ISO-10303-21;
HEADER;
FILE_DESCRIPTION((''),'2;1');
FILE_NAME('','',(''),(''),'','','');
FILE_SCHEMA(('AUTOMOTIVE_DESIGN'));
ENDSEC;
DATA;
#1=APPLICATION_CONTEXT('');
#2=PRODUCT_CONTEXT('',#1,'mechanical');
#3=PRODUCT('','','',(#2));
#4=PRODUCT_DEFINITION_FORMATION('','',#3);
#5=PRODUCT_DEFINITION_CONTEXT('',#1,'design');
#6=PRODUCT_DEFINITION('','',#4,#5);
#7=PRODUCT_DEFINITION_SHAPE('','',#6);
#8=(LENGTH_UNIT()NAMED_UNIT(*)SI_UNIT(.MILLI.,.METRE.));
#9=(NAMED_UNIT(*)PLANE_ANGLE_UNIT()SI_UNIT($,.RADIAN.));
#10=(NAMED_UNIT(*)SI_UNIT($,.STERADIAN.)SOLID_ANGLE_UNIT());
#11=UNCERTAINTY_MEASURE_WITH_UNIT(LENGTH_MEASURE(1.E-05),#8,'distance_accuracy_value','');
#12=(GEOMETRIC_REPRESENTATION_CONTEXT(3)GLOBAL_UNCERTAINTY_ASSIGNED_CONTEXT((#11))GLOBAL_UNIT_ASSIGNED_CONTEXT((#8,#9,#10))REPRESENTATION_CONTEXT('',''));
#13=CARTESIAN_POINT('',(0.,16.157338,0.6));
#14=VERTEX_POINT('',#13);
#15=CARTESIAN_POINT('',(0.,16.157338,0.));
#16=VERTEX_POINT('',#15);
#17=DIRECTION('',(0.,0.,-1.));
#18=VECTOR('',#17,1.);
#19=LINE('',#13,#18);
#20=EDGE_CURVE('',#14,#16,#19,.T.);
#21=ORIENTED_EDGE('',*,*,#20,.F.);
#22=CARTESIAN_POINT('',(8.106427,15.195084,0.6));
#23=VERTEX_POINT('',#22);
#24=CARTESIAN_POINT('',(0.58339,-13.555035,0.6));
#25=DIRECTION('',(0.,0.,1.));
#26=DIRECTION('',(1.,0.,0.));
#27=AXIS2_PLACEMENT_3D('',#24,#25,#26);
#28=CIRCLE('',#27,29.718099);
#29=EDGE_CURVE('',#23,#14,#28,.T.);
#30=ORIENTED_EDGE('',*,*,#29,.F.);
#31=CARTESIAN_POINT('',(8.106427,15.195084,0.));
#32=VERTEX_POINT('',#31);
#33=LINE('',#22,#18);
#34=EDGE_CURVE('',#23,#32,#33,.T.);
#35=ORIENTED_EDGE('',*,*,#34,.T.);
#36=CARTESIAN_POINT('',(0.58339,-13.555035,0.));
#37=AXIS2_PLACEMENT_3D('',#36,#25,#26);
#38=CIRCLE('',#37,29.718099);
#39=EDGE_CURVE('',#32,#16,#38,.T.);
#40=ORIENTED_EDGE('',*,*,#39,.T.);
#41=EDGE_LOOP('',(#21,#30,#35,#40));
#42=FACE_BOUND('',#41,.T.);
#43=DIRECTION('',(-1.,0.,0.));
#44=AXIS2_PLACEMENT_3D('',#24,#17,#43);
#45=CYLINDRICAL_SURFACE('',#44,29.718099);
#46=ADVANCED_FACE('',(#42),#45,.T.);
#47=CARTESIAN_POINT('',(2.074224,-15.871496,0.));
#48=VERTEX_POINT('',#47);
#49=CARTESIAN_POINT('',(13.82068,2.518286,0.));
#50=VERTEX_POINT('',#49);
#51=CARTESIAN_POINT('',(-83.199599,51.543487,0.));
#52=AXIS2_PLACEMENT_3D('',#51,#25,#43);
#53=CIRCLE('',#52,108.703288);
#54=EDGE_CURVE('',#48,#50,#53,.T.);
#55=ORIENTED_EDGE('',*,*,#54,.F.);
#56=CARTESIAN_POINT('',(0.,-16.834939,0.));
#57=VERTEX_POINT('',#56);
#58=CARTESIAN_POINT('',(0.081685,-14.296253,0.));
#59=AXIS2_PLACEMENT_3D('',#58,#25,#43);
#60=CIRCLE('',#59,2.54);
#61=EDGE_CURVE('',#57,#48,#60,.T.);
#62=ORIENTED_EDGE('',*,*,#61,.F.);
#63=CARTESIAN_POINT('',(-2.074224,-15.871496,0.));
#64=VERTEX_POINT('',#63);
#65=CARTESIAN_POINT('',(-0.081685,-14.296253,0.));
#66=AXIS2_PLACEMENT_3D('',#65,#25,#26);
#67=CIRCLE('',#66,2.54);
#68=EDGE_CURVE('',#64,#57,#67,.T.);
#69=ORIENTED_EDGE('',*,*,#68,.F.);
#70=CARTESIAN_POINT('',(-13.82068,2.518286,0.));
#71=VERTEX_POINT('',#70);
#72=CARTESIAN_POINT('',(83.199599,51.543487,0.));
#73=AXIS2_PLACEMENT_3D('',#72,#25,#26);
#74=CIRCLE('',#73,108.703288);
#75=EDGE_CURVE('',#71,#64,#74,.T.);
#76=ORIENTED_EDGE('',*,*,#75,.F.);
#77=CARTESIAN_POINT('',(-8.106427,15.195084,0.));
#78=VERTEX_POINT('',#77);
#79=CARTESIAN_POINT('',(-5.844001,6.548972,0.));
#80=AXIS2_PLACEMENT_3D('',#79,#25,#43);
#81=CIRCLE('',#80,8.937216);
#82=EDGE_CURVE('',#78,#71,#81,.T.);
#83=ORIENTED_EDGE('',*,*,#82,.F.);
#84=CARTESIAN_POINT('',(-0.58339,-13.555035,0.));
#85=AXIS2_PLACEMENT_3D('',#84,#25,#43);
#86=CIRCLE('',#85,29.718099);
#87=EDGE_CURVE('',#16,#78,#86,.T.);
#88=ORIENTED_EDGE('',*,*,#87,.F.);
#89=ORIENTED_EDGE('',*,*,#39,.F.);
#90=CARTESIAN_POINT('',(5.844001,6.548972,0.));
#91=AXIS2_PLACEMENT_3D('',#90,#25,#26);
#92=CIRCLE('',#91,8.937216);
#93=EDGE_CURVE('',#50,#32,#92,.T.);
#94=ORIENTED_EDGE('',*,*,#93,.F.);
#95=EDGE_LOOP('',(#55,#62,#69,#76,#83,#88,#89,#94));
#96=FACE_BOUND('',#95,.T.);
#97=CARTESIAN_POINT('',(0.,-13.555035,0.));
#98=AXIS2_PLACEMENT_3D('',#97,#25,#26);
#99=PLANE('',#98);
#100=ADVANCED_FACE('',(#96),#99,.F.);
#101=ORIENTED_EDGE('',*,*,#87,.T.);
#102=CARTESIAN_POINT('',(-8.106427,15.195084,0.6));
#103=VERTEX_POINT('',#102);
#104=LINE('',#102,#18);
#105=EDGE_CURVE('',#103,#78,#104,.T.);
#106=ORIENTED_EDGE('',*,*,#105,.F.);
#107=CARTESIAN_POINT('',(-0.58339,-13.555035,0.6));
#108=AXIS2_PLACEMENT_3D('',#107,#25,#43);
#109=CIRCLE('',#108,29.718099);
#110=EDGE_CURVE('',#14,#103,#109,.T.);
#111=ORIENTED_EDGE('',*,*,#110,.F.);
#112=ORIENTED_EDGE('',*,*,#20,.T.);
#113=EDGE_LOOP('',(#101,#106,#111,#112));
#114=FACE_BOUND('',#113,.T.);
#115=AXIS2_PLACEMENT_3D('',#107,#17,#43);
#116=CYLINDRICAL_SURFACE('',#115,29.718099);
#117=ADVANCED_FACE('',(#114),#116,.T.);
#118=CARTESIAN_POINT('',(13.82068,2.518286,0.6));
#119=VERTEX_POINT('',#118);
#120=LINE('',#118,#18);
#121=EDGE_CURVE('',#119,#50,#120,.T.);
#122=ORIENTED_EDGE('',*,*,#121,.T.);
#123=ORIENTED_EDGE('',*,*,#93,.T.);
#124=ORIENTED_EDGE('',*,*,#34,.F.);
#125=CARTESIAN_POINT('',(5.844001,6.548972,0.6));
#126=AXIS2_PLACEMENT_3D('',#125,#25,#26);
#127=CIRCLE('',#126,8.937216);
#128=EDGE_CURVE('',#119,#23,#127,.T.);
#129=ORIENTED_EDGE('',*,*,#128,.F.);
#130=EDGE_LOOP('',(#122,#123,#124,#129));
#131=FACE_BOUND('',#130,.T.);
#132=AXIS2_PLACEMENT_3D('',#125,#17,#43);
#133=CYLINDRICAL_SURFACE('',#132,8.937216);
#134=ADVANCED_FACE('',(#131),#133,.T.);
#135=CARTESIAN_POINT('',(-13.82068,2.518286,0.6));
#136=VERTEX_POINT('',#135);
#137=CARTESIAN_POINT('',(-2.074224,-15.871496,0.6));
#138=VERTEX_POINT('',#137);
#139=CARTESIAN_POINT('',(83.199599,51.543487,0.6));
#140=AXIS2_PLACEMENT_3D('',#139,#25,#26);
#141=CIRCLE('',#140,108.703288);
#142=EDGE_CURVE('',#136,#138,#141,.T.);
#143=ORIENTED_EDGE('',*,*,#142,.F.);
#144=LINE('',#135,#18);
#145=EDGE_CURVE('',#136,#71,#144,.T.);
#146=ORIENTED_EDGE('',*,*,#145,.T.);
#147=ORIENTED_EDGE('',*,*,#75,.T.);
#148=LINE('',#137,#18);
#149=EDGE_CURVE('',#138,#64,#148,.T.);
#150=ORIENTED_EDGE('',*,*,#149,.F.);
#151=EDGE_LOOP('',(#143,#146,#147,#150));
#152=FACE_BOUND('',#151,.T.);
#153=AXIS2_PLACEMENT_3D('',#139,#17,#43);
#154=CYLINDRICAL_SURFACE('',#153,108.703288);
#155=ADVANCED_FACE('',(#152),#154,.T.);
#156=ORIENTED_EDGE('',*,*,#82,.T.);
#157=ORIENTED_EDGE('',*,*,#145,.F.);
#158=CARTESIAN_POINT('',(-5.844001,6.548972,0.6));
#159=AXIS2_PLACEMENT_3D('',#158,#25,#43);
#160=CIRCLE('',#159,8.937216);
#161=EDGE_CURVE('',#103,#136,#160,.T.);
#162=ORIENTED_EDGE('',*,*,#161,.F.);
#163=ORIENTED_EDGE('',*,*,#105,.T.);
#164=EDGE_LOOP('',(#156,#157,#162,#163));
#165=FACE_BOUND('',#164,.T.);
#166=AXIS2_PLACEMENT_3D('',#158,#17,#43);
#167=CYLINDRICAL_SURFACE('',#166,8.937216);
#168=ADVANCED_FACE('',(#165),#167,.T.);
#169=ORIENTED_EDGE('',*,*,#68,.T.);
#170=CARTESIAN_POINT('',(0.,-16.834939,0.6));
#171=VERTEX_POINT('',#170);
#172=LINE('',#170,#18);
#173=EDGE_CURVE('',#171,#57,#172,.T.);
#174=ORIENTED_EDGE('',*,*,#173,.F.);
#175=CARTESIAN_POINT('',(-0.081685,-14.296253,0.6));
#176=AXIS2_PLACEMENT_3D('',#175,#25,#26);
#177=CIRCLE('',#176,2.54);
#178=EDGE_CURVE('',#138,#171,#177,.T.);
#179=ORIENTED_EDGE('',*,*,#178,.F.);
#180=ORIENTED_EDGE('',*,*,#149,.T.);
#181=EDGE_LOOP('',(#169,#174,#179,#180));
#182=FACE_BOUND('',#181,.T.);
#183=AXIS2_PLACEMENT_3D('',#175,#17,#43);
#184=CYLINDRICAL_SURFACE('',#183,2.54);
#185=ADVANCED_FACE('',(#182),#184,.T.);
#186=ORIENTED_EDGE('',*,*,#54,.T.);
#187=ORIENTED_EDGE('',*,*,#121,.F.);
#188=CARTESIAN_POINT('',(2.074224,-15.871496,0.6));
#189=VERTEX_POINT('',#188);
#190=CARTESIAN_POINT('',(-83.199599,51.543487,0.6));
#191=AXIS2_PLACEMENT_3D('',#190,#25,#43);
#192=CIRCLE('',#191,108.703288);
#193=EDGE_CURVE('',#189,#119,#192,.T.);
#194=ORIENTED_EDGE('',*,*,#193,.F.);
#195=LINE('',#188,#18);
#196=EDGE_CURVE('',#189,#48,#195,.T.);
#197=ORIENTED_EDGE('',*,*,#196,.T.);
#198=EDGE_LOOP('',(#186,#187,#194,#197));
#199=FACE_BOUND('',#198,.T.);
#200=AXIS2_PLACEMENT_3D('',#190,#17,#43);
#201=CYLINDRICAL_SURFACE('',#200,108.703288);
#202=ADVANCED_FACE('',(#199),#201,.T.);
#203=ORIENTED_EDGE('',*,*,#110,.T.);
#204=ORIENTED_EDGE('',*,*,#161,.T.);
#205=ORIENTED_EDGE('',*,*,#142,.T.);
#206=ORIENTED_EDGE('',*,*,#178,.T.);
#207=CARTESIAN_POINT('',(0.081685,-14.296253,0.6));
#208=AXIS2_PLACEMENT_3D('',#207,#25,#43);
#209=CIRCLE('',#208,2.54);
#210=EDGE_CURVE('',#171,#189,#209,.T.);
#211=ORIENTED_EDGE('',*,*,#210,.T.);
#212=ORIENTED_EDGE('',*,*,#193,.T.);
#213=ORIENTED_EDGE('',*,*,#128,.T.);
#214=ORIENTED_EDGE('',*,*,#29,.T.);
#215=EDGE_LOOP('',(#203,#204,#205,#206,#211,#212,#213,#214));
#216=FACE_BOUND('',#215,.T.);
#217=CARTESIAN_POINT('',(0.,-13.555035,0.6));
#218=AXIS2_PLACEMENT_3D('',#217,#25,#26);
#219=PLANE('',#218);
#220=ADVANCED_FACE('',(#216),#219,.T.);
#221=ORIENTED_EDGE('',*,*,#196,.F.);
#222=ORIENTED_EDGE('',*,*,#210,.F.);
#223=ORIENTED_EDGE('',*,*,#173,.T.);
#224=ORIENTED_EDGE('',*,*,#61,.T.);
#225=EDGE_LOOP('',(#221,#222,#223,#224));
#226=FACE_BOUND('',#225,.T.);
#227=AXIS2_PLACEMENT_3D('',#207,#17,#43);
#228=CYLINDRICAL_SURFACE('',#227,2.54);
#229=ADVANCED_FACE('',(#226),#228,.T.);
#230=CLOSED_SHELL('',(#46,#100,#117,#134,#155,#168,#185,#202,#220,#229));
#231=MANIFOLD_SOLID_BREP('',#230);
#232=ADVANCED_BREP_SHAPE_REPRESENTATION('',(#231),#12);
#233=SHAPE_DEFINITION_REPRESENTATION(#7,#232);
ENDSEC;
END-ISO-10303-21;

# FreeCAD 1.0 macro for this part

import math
import FreeCAD as App
import Part
import Sketcher
from FreeCAD import Vector

doc = App.newDocument("Part")
body = doc.addObject("PartDesign::Body", "Body")

# Sketch on XY plane
sketch1 = doc.addObject("Sketcher::SketchObject", "Sketch")
body.addObject(sketch1)
sketch1.AttachmentSupport = (doc.XY_Plane, [""])
sketch1.MapMode = "FlatFace"
sketch1.addGeometry([
    Part.ArcOfCircle(Part.Circle(Vector(0.081685, -14.296253, 0), Vector(0, 0, 1), 2.54), math.radians(-91.842916), math.radians(-38.328862)),  # 0
    Part.ArcOfCircle(Part.Circle(Vector(-83.199599, 51.543487, 0), Vector(0, 0, 1), 108.703288), math.radians(-38.328862), math.radians(-26.807872)),  # 1
    Part.ArcOfCircle(Part.Circle(Vector(5.844001, 6.548972, 0), Vector(0, 0, 1), 8.937216), math.radians(-26.807872), math.radians(75.336207)),  # 2
    Part.ArcOfCircle(Part.Circle(Vector(0.58339, -13.555035, 0), Vector(0, 0, 1), 29.718099), math.radians(75.336207), math.radians(91.124834)),  # 3
    Part.ArcOfCircle(Part.Circle(Vector(-0.58339, -13.555035, 0), Vector(0, 0, 1), 29.718099), math.radians(88.875166), math.radians(104.663793)),  # 4
    Part.ArcOfCircle(Part.Circle(Vector(-5.844001, 6.548972, 0), Vector(0, 0, 1), 8.937216), math.radians(104.663793), math.radians(206.807872)),  # 5
    Part.ArcOfCircle(Part.Circle(Vector(83.199599, 51.543487, 0), Vector(0, 0, 1), 108.703288), math.radians(-153.192128), math.radians(-141.671138)),  # 6
    Part.ArcOfCircle(Part.Circle(Vector(-0.081685, -14.296253, 0), Vector(0, 0, 1), 2.54), math.radians(-141.671138), math.radians(-88.157084)),  # 7
], False)
sketch1.addConstraint([
    Sketcher.Constraint("Tangent", 0, 2, 1, 1),
    Sketcher.Constraint("Tangent", 1, 2, 2, 1),
    Sketcher.Constraint("Tangent", 2, 2, 3, 1),
    Sketcher.Constraint("Coincident", 3, 2, 4, 1),
    Sketcher.Constraint("Tangent", 4, 2, 5, 1),
    Sketcher.Constraint("Tangent", 5, 2, 6, 1),
    Sketcher.Constraint("Tangent", 6, 2, 7, 1),
    Sketcher.Constraint("Coincident", 7, 2, 0, 1),
    Sketcher.Constraint("Equal", 3, 4),
    Sketcher.Constraint("Equal", 2, 5),
    Sketcher.Constraint("Equal", 1, 6),
    Sketcher.Constraint("Equal", 0, 7),
    Sketcher.Constraint("Symmetric", 3, 3, 4, 3, -2),
    Sketcher.Constraint("Symmetric", 1, 3, 6, 3, -2),
    Sketcher.Constraint("PointOnObject", 7, 2, -2),
    Sketcher.Constraint("Radius", 0, 2.54),
    Sketcher.Constraint("Radius", 3, 29.718099),
    Sketcher.Constraint("DistanceX", -1, 1, 2, 3, 5.844001),
    Sketcher.Constraint("Radius", 1, 108.703288),
    Sketcher.Constraint("Radius", 2, 8.937216),
    Sketcher.Constraint("DistanceX", 1, 3, -1, 1, 83.199599),
    Sketcher.Constraint("DistanceY", 5, 2, 4, 2, 12.676798),
    Sketcher.Constraint("DistanceY", -1, 1, 3, 2, 16.157338),
    Sketcher.Constraint("DistanceY", 7, 2, -1, 1, 16.834939),
])
pad1 = doc.addObject("PartDesign::Pad", "Pad")
body.addObject(pad1)
pad1.Profile = sketch1
pad1.Length = 0.6

doc.recompute()
